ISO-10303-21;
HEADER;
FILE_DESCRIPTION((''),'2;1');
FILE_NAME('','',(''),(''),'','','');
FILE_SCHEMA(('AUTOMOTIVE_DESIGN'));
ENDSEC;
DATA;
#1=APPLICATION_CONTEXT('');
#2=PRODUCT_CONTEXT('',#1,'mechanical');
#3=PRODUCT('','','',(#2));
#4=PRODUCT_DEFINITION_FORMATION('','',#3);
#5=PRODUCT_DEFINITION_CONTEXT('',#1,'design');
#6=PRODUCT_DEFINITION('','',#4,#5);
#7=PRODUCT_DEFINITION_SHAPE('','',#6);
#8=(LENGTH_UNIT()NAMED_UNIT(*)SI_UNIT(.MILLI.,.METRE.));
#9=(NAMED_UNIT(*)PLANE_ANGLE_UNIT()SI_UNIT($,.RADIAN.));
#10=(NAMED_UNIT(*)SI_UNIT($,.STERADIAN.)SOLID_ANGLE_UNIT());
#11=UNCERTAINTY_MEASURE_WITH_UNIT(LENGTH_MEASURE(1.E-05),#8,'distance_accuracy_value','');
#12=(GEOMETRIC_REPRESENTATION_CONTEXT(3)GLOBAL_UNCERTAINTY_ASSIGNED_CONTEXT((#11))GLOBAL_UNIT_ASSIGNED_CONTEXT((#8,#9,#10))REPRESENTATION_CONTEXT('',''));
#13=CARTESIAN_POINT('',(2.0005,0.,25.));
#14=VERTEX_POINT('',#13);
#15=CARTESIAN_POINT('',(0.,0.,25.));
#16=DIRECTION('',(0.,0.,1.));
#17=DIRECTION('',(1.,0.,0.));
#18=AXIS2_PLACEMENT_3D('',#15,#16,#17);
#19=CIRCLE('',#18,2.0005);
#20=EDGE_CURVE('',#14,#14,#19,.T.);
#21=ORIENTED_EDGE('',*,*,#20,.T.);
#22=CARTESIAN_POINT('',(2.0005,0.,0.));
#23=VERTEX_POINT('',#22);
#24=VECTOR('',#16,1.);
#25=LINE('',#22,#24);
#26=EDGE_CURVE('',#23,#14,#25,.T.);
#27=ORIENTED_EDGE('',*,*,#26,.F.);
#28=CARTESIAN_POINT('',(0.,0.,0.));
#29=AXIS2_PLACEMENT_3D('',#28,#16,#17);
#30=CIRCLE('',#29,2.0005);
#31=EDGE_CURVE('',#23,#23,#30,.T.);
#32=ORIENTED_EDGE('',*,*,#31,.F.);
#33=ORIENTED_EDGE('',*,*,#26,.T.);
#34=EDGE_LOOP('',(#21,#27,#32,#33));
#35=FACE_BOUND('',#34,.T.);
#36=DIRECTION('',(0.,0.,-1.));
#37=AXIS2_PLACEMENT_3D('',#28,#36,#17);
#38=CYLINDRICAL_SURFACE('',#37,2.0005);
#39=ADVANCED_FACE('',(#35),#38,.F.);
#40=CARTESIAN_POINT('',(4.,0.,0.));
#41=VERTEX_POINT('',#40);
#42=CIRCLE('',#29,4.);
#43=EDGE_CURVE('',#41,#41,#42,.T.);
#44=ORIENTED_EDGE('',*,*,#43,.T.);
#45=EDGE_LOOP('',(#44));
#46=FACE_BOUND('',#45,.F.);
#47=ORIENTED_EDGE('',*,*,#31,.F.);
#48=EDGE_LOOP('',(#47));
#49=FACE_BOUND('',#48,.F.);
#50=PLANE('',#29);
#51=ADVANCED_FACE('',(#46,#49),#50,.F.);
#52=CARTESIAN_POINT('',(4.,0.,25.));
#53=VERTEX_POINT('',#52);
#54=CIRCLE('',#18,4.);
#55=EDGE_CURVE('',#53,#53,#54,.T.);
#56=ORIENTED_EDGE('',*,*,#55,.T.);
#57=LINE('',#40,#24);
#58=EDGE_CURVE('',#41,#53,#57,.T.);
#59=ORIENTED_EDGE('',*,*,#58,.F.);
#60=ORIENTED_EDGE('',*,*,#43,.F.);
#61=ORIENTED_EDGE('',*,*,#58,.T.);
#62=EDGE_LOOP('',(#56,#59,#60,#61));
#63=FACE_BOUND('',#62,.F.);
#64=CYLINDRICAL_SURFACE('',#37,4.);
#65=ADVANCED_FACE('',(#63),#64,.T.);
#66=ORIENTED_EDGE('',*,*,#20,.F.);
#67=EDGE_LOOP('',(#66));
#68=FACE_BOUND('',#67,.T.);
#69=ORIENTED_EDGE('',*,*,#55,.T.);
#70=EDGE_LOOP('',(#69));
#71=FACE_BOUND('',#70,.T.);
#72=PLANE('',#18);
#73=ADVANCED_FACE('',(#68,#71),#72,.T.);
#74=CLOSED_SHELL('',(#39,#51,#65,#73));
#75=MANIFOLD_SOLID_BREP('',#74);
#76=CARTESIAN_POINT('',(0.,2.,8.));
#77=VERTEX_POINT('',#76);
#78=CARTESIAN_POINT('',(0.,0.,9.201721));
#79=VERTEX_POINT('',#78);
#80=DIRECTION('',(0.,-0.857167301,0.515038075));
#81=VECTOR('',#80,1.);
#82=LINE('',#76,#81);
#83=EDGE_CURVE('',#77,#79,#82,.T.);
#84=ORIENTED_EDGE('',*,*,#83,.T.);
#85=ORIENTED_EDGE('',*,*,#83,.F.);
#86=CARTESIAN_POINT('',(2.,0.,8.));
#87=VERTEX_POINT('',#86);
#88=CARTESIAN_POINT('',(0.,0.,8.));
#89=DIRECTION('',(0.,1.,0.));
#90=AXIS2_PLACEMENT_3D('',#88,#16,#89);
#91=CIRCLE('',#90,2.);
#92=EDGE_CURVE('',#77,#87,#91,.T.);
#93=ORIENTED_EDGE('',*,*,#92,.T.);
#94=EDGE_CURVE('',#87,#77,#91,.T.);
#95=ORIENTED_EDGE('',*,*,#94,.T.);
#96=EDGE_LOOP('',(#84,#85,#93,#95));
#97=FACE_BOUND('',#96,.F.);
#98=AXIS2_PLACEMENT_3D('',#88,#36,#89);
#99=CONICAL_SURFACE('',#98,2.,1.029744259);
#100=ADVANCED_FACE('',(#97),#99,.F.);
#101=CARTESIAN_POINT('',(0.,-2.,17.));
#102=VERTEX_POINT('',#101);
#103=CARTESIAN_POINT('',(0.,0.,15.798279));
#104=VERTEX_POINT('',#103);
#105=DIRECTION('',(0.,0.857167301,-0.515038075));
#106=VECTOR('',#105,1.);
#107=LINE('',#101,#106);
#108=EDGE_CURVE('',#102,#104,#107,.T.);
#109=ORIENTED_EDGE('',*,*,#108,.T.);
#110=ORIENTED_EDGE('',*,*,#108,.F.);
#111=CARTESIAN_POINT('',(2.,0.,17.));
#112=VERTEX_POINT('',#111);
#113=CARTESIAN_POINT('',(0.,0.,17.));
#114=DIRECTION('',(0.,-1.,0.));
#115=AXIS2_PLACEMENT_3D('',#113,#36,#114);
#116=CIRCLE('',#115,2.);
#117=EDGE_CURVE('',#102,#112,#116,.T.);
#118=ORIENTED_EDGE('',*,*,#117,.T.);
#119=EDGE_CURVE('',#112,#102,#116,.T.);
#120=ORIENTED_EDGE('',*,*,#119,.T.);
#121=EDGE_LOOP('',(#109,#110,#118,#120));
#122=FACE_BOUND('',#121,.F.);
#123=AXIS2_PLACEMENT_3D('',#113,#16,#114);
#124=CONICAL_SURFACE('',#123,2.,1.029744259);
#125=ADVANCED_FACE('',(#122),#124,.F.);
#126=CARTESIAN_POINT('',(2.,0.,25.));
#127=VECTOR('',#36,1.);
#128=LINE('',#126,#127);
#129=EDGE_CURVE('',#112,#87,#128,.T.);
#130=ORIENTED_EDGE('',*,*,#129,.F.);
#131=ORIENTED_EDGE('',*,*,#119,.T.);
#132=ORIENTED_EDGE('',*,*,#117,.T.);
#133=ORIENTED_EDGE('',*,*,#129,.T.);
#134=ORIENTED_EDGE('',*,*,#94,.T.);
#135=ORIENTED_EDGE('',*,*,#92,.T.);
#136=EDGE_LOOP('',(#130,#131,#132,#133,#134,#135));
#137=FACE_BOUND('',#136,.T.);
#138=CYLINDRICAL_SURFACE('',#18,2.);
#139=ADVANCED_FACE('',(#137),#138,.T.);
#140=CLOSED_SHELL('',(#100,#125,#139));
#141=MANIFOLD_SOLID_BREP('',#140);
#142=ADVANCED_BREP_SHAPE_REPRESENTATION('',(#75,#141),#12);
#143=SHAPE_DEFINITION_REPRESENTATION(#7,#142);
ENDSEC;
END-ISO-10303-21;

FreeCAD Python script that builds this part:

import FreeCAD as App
import Part
import Sketcher

V = App.Vector

doc = App.newDocument("Part")
body = doc.addObject("PartDesign::Body", "Body")
body.AllowCompound = True

# Sketch on XY plane
sketch1 = doc.addObject("Sketcher::SketchObject", "Sketch")
body.addObject(sketch1)
sketch1.AttachmentSupport = (doc.XY_Plane, [""])
sketch1.MapMode = "FlatFace"
sketch1.addGeometry([
    Part.Circle(V(0, 0, 0), V(0, 0, 1), 4),
    Part.Circle(V(0, 0, 0), V(0, 0, 1), 2.0005),
], False)
sketch1.addConstraint([
    Sketcher.Constraint("Coincident", 0, 3, -1, 1),
    Sketcher.Constraint("Coincident", 1, 3, -1, 1),
    Sketcher.Constraint("Diameter", 0, 8.0),
    Sketcher.Constraint("Diameter", 1, 4.001),
])
pad1 = doc.addObject("PartDesign::Pad", "Pad")
body.addObject(pad1)
pad1.Profile = sketch1
pad1.Length = 25

# Sketch on XY plane
sketch2 = doc.addObject("Sketcher::SketchObject", "Sketch001")
body.addObject(sketch2)
sketch2.AttachmentSupport = (doc.XY_Plane, [""])
sketch2.MapMode = "FlatFace"
sketch2.AttachmentOffset = App.Placement(V(0, 0, 25), App.Rotation())
sketch2.addGeometry(Part.Circle(V(0, 0, 0), V(0, 0, 1), 2), False)
sketch2.addConstraint([
    Sketcher.Constraint("Coincident", 0, 3, -1, 1),
    Sketcher.Constraint("Diameter", 0, 4.0),
])
pad2 = doc.addObject("PartDesign::Pad", "Pad001")
body.addObject(pad2)
pad2.Profile = sketch2
pad2.Length = 25
pad2.Reversed = True

# Sketch on XY plane
sketch3 = doc.addObject("Sketcher::SketchObject", "Sketch002")
body.addObject(sketch3)
sketch3.AttachmentSupport = (doc.XY_Plane, [""])
sketch3.MapMode = "FlatFace"
sketch3.AttachmentOffset = App.Placement(V(0, 0, 25), App.Rotation())
sketch3.addGeometry(Part.Circle(V(0, 0, 0), V(0, 0, 1), 2), False)
sketch3.addConstraint([
    Sketcher.Constraint("Coincident", 0, 3, -1, 1),
    Sketcher.Constraint("Diameter", 0, 4.0),
])
doc.recompute()
hole = doc.addObject("PartDesign::Hole", "Hole")
body.addObject(hole)
hole.Profile = sketch3
hole.ThreadType = "None"
hole.Diameter = 4
hole.DepthType = "Dimension"
hole.Depth = 8
hole.DrillPoint = "Angled"
hole.DrillPointAngle = 118

# Sketch on XY plane
sketch4 = doc.addObject("Sketcher::SketchObject", "Sketch003")
body.addObject(sketch4)
sketch4.AttachmentSupport = (doc.XY_Plane, [""])
sketch4.MapMode = "FlatFace"
sketch4.addGeometry(Part.Circle(V(0, 0, 0), V(0, 0, 1), 2), False)
sketch4.addConstraint([
    Sketcher.Constraint("Coincident", 0, 3, -1, 1),
    Sketcher.Constraint("Diameter", 0, 4.0),
])
doc.recompute()
hole2 = doc.addObject("PartDesign::Hole", "Hole001")
body.addObject(hole2)
hole2.Profile = sketch4
hole2.ThreadType = "None"
hole2.Diameter = 4
hole2.DepthType = "Dimension"
hole2.Depth = 8
hole2.DrillPoint = "Angled"
hole2.DrillPointAngle = 118
hole2.Reversed = True

doc.recompute()
